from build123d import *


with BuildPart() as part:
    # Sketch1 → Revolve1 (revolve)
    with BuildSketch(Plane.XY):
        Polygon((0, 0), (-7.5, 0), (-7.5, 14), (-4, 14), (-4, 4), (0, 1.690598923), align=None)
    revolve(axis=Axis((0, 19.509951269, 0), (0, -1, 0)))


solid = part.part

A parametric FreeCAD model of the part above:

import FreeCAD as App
import Part
import Sketcher
Q = App.Units.Quantity

doc = App.newDocument("Part")
body = doc.addObject("PartDesign::Body", "Body")

sketch1 = body.newObject("Sketcher::SketchObject", "Sketch")
sketch1.AttachmentSupport = (doc.getObject("XY_Plane"), [""])
sketch1.MapMode = "FlatFace"
sketch1.addGeometry(Part.LineSegment(App.Vector(-7.5, 0, 0), App.Vector(0, 0, 0)), False)
sketch1.addGeometry(Part.LineSegment(App.Vector(0, 0, 0), App.Vector(0, 1.7, 0)), False)
sketch1.addGeometry(Part.LineSegment(App.Vector(0, 1.7, 0), App.Vector(-4, 4, 0)), False)
sketch1.addGeometry(Part.LineSegment(App.Vector(-4, 4, 0), App.Vector(-4, 14, 0)), False)
sketch1.addGeometry(Part.LineSegment(App.Vector(-4, 14, 0), App.Vector(-7.5, 14, 0)), False)
sketch1.addGeometry(Part.LineSegment(App.Vector(-7.5, 14, 0), App.Vector(-7.5, 0, 0)), False)
sketch1.addConstraint(Sketcher.Constraint("Coincident", 0, 2, 1, 1))
sketch1.addConstraint(Sketcher.Constraint("Coincident", 1, 2, 2, 1))
sketch1.addConstraint(Sketcher.Constraint("Coincident", 2, 2, 3, 1))
sketch1.addConstraint(Sketcher.Constraint("Coincident", 3, 2, 4, 1))
sketch1.addConstraint(Sketcher.Constraint("Coincident", 4, 2, 5, 1))
sketch1.addConstraint(Sketcher.Constraint("Coincident", 5, 2, 0, 1))
sketch1.addConstraint(Sketcher.Constraint("Horizontal", 0))
sketch1.addConstraint(Sketcher.Constraint("Vertical", 1))
sketch1.addConstraint(Sketcher.Constraint("Vertical", 3))
sketch1.addConstraint(Sketcher.Constraint("Horizontal", 4))
sketch1.addConstraint(Sketcher.Constraint("Vertical", 5))
sketch1.addConstraint(Sketcher.Constraint("Coincident", 0, 2, -1, 1))
sketch1.addConstraint(Sketcher.Constraint("DistanceY", 3, 1, 3, 2, 10.0))
sketch1.addConstraint(Sketcher.Constraint("DistanceY", 5, 2, 5, 1, 14.0))
sketch1.addConstraint(Sketcher.Constraint("Angle", 2, Q("150 deg")))
sketch1.addConstraint(Sketcher.Constraint("DistanceX", 0, 1, 0, 2, 7.5))
sketch1.addConstraint(Sketcher.Constraint("DistanceX", 4, 2, 4, 1, 3.5))
revolution = body.newObject("PartDesign::Revolution", "Revolution")
revolution.Profile = sketch1
revolution.ReferenceAxis = (sketch1, ["V_Axis"])
revolution.Angle = 360

doc.recompute()
